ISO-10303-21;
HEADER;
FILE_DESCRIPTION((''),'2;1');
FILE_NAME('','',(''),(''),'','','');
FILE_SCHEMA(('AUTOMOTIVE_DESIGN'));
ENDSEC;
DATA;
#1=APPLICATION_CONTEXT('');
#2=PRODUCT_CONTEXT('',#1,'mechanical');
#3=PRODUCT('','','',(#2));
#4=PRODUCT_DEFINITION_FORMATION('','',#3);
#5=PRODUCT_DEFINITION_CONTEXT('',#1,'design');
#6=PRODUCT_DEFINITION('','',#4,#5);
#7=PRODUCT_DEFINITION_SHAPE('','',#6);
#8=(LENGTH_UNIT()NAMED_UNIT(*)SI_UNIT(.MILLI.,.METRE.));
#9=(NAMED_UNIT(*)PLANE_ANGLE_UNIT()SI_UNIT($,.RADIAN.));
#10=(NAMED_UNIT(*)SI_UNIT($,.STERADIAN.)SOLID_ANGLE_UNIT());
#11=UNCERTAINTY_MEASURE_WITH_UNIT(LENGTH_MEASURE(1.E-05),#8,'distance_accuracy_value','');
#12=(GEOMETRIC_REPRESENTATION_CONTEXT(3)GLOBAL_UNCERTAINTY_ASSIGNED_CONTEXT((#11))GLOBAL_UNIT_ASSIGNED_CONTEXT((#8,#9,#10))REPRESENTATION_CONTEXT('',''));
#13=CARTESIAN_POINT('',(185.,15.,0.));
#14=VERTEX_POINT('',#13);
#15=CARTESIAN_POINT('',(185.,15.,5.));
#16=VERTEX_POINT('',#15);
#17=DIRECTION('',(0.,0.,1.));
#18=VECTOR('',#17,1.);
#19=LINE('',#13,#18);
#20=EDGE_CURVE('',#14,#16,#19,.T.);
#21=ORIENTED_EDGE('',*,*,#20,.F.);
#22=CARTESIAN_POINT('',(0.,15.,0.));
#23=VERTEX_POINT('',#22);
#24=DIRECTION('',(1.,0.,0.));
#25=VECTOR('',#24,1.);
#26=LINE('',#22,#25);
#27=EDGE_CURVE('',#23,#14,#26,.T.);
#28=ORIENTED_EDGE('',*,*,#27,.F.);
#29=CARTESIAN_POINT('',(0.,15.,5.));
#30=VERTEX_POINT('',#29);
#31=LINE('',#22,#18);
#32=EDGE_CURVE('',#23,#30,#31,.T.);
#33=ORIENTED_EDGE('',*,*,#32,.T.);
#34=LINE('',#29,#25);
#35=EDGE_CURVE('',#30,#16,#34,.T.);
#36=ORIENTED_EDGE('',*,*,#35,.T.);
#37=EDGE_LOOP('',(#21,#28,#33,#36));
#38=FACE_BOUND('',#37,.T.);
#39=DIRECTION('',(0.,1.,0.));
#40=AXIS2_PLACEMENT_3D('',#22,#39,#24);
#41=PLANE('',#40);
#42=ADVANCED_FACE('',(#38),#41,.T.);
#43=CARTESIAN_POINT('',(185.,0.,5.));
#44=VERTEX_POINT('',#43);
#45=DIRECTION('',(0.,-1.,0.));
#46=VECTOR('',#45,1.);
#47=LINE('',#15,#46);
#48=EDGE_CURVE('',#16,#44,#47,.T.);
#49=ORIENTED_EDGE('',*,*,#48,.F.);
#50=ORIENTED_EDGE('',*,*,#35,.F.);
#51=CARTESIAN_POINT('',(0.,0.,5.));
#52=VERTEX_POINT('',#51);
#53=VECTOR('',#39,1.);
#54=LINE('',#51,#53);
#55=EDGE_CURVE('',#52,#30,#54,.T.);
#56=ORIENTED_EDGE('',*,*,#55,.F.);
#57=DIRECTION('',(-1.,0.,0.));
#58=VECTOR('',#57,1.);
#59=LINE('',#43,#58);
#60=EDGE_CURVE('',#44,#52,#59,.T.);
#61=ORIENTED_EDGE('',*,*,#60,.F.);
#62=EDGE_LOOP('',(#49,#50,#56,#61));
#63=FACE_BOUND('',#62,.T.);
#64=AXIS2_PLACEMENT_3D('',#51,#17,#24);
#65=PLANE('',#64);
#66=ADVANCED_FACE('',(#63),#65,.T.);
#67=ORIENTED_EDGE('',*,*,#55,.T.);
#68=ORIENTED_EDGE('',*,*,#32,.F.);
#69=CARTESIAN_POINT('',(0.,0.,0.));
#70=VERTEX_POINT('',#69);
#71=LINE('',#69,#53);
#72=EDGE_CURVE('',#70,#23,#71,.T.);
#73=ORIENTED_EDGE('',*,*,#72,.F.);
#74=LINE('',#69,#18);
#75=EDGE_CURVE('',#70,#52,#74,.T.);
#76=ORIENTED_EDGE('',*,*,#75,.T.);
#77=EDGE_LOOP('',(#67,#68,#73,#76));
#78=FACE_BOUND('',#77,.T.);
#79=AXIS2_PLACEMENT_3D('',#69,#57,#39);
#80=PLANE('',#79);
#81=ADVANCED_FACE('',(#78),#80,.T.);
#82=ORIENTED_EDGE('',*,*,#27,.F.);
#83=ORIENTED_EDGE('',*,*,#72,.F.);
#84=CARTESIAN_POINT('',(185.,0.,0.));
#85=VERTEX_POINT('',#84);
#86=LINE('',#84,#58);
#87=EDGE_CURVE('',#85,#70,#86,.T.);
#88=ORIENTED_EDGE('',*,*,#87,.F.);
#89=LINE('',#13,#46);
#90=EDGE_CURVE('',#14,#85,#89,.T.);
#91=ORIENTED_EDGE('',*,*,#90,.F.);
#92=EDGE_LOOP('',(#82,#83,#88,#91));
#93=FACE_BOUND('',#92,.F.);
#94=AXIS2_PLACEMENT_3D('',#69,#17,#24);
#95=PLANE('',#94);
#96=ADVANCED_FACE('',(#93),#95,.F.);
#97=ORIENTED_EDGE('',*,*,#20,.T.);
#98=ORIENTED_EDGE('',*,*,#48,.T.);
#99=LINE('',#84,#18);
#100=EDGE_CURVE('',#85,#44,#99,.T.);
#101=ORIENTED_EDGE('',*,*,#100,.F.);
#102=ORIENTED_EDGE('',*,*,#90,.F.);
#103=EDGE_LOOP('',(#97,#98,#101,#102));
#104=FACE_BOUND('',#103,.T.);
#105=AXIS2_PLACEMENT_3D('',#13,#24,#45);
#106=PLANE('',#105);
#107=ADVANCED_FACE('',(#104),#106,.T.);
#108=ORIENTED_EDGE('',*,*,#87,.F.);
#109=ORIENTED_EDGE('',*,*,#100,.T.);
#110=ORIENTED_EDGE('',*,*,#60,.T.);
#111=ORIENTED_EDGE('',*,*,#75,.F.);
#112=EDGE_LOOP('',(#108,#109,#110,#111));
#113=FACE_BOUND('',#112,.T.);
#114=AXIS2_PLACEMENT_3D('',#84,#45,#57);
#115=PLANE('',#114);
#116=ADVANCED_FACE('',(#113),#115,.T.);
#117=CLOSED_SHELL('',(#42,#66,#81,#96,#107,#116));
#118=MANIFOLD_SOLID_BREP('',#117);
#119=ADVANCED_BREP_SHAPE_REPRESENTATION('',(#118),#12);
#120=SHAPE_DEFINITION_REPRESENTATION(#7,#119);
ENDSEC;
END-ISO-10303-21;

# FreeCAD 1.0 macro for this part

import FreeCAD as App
import Part
import Sketcher
Q = App.Units.Quantity

doc = App.newDocument("Part")
params = doc.addObject("Spreadsheet::Sheet", "Params")
for row, (alias, value) in enumerate([
    ("sketch1_width", "185 mm"),
    ("sketch1_height", "15 mm"),
    ("pad1_length", "5 mm"),
], start=1):
    params.set(f"A{row}", alias)
    params.set(f"B{row}", "=" + value)
    params.setAlias(f"B{row}", alias)

body = doc.addObject("PartDesign::Body", "Body")

# Sketch on XY plane
sketch1 = body.newObject("Sketcher::SketchObject", "Sketch")
sketch1.AttachmentSupport = (doc.getObject("XY_Plane"), [""])
sketch1.MapMode = "FlatFace"
sketch1.addGeometry([
    Part.LineSegment(App.Vector(0, 15, 0), App.Vector(0, 0, 0)),
    Part.LineSegment(App.Vector(0, 0, 0), App.Vector(185, 0, 0)),
    Part.LineSegment(App.Vector(185, 0, 0), App.Vector(185, 15, 0)),
    Part.LineSegment(App.Vector(185, 15, 0), App.Vector(0, 15, 0)),
], False)
sketch1.addConstraint([
    Sketcher.Constraint("Coincident", 0, 2, 1, 1),
    Sketcher.Constraint("Coincident", 1, 2, 2, 1),
    Sketcher.Constraint("Coincident", 2, 2, 3, 1),
    Sketcher.Constraint("Coincident", 3, 2, 0, 1),
    Sketcher.Constraint("Vertical", 0),
    Sketcher.Constraint("Horizontal", 1),
    Sketcher.Constraint("Vertical", 2),
    Sketcher.Constraint("Horizontal", 3),
    Sketcher.Constraint("Coincident", 0, 2, -1, 1),
    Sketcher.Constraint("DistanceX", 1, 1, 1, 2, Q("185 mm")),
    Sketcher.Constraint("DistanceY", 0, 2, 0, 1, Q("15 mm")),
])
sketch1.setExpression("Constraints[9]", "Params.sketch1_width")
sketch1.setExpression("Constraints[10]", "Params.sketch1_height")
pad1 = body.newObject("PartDesign::Pad", "Pad")
pad1.Profile = sketch1
pad1.setExpression("Length", "Params.pad1_length")

doc.recompute()
